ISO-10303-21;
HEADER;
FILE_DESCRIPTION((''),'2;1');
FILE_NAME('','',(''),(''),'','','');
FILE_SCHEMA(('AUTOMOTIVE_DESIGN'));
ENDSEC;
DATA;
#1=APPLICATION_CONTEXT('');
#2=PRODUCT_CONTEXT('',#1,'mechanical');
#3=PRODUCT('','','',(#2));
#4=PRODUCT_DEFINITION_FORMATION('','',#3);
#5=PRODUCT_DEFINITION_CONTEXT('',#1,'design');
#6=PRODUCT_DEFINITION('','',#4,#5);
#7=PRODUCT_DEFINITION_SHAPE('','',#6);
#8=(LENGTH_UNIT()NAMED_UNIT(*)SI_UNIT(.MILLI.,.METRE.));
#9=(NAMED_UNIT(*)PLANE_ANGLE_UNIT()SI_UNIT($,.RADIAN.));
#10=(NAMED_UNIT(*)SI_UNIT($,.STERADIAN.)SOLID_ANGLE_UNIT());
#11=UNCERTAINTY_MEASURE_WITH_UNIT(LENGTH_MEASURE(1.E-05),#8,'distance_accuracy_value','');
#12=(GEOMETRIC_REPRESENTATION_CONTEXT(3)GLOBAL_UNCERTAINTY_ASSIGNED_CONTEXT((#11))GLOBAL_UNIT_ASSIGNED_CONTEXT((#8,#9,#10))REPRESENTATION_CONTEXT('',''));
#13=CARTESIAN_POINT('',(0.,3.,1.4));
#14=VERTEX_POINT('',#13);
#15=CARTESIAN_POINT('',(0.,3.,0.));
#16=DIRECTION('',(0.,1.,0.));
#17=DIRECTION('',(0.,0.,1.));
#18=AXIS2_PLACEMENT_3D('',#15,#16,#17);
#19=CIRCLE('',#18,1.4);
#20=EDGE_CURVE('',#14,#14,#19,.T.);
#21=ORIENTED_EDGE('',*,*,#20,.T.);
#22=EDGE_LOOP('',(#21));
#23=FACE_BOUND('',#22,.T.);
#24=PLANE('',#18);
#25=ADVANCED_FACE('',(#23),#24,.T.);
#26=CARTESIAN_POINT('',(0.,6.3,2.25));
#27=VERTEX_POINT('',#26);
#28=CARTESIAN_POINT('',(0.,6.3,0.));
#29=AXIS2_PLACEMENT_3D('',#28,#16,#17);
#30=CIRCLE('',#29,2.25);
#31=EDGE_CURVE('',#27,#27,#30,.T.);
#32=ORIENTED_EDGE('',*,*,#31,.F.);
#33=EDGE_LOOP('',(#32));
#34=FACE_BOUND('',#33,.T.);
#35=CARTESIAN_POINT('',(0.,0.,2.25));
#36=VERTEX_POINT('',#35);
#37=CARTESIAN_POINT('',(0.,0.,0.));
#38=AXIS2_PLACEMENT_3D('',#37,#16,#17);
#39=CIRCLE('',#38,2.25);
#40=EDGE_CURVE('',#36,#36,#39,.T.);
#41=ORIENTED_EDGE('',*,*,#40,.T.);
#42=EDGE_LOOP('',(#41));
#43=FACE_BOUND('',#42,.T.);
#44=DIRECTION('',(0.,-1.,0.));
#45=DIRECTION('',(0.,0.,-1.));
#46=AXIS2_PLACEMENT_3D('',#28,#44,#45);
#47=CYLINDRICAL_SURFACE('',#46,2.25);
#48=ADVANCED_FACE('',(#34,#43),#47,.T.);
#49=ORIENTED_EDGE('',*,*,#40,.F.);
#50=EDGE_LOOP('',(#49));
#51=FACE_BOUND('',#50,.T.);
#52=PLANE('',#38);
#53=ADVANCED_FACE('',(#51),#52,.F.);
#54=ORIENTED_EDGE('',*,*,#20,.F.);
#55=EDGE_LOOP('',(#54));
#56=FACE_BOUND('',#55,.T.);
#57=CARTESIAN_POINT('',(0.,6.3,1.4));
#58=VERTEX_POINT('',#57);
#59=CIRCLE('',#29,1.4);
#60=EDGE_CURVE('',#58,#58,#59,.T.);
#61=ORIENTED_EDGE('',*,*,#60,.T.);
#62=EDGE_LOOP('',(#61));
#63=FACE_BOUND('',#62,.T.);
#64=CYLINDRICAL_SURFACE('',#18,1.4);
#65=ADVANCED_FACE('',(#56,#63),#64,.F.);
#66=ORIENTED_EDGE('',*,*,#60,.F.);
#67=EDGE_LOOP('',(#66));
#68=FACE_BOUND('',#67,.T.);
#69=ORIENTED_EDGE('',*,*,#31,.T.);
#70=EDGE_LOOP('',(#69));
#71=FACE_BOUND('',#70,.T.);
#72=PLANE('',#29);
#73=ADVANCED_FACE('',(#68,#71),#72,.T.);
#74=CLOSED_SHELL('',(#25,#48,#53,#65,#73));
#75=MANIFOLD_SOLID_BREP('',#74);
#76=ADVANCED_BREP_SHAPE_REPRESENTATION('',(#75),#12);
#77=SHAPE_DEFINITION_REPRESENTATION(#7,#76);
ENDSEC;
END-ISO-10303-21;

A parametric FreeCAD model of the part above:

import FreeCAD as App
import Part
import Sketcher
Q = App.Units.Quantity

doc = App.newDocument("Part")
body = doc.addObject("PartDesign::Body", "Body")

# Sketch on XZ plane
sketch1 = body.newObject("Sketcher::SketchObject", "Sketch")
sketch1.AttachmentSupport = (doc.getObject("XZ_Plane"), [""])
sketch1.MapMode = "FlatFace"
sketch1.addGeometry(Part.Circle(App.Vector(0, 0, 0), App.Vector(0, 0, 1), 2.2), False)
sketch1.addConstraint([
    Sketcher.Constraint("Coincident", 0, 3, -1, 1),
    Sketcher.Constraint("Diameter", 0, Q("4.5 mm")),
])
pad1 = body.newObject("PartDesign::Pad", "Pad")
pad1.Profile = sketch1
pad1.Length = 6.3
pad1.Reversed = True

# Sketch on XZ plane
sketch2 = body.newObject("Sketcher::SketchObject", "Sketch001")
sketch2.AttachmentSupport = (doc.getObject("XZ_Plane"), [""])
sketch2.MapMode = "FlatFace"
sketch2.AttachmentOffset = App.Placement(App.Vector(0, 0, -6.3), App.Rotation())
sketch2.addGeometry(Part.Circle(App.Vector(0, 0, 0), App.Vector(0, 0, 1), 1.4), False)
sketch2.addConstraint([
    Sketcher.Constraint("Coincident", 0, 3, -1, 1),
    Sketcher.Constraint("Diameter", 0, Q("2.8 mm")),
])
pocket1 = body.newObject("PartDesign::Pocket", "Pocket")
pocket1.Profile = sketch2
pocket1.Length = 3.3
pocket1.Reversed = True

doc.recompute()
